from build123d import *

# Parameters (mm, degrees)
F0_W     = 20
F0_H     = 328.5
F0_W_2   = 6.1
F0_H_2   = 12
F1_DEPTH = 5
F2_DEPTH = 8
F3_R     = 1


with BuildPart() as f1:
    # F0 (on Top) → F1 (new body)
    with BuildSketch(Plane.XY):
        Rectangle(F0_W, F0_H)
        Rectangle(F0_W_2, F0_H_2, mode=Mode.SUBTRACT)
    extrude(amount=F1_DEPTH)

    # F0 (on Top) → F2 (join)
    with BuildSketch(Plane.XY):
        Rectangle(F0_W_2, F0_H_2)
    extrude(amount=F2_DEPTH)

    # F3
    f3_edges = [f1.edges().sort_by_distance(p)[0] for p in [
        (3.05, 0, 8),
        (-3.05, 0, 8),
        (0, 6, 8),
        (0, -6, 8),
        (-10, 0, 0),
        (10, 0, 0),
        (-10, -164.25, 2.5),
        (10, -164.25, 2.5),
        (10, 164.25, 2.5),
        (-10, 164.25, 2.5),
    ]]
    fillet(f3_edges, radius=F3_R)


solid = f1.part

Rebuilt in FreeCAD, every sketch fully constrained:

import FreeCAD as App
import Part
import Sketcher
Q = App.Units.Quantity


def edges_at(feature, points):
    """Names of the edges that pass closest to the given points."""
    edges = feature.Shape.Edges
    near = lambda p: min(range(len(edges)), key=lambda i: edges[i].distToShape(Part.Vertex(*p))[0])
    return sorted({f"Edge{near(p) + 1}" for p in points})


def add_polygon(sketch, points):
    """Adds a closed chain of lines whose ends are joined by coincident constraints."""
    first, n = sketch.GeometryCount, len(points)
    for a, b in zip(points, points[1:] + points[:1]):
        sketch.addGeometry(Part.LineSegment(App.Vector(*a, 0), App.Vector(*b, 0)), False)
    for i in range(n):
        sketch.addConstraint(Sketcher.Constraint("Coincident", first + i, 2, first + (i + 1) % n, 1))

doc = App.newDocument("Part")
body = doc.addObject("PartDesign::Body", "Body")

sketch1 = body.newObject("Sketcher::SketchObject", "Sketch")
sketch1.AttachmentSupport = (doc.getObject("XY_Plane"), [""])
sketch1.MapMode = "FlatFace"
add_polygon(sketch1, [(-10, 164), (-10, -164), (10, -164), (10, 164)])
add_polygon(sketch1, [(3, -6), (-3, -6), (-3, 6), (3, 6)])
sketch1.addConstraint(Sketcher.Constraint("Vertical", 0))
sketch1.addConstraint(Sketcher.Constraint("Horizontal", 1))
sketch1.addConstraint(Sketcher.Constraint("Vertical", 2))
sketch1.addConstraint(Sketcher.Constraint("Horizontal", 3))
sketch1.addConstraint(Sketcher.Constraint("Horizontal", 4))
sketch1.addConstraint(Sketcher.Constraint("Vertical", 5))
sketch1.addConstraint(Sketcher.Constraint("Horizontal", 6))
sketch1.addConstraint(Sketcher.Constraint("Vertical", 7))
sketch1.addConstraint(Sketcher.Constraint("Symmetric", 0, 2, 2, 2, -1, 1))
sketch1.addConstraint(Sketcher.Constraint("Symmetric", 4, 2, 6, 2, -1, 1))
sketch1.addConstraint(Sketcher.Constraint("DistanceX", 1, 1, 1, 2, Q("20 mm")))
sketch1.addConstraint(Sketcher.Constraint("DistanceY", 5, 1, 5, 2, Q("12 mm")))
sketch1.addConstraint(Sketcher.Constraint("DistanceX", 4, 2, 4, 1, Q("6.1 mm")))
sketch1.addConstraint(Sketcher.Constraint("DistanceY", 0, 2, 0, 1, Q("328.5 mm")))
pad1 = body.newObject("PartDesign::Pad", "Pad")
pad1.Profile = sketch1
pad1.Length = 5

sketch2 = body.newObject("Sketcher::SketchObject", "Sketch001")
sketch2.AttachmentSupport = (doc.getObject("XY_Plane"), [""])
sketch2.MapMode = "FlatFace"
add_polygon(sketch2, [(-3, 6), (-3, -6), (3, -6), (3, 6)])
sketch2.addConstraint(Sketcher.Constraint("Vertical", 0))
sketch2.addConstraint(Sketcher.Constraint("Horizontal", 1))
sketch2.addConstraint(Sketcher.Constraint("Vertical", 2))
sketch2.addConstraint(Sketcher.Constraint("Horizontal", 3))
sketch2.addConstraint(Sketcher.Constraint("Symmetric", 0, 2, 2, 2, -1, 1))
sketch2.addConstraint(Sketcher.Constraint("DistanceY", 0, 2, 0, 1, Q("12 mm")))
sketch2.addConstraint(Sketcher.Constraint("DistanceX", 1, 1, 1, 2, Q("6.1 mm")))
pad2 = body.newObject("PartDesign::Pad", "Pad001")
pad2.Profile = sketch2
pad2.Length = 8
doc.recompute()

fillet = body.newObject("PartDesign::Fillet", "Fillet")
fillet.Base = (pad2, edges_at(pad2, [
    (3.05, 0, 8),
    (-3.05, 0, 8),
    (0, 6, 8),
    (0, -6, 8),
    (-10, 0, 0),
    (10, 0, 0),
    (-10, -164.25, 2.5),
    (10, -164.25, 2.5),
    (10, 164.25, 2.5),
    (-10, 164.25, 2.5),
]))
fillet.Radius = 1

doc.recompute()
